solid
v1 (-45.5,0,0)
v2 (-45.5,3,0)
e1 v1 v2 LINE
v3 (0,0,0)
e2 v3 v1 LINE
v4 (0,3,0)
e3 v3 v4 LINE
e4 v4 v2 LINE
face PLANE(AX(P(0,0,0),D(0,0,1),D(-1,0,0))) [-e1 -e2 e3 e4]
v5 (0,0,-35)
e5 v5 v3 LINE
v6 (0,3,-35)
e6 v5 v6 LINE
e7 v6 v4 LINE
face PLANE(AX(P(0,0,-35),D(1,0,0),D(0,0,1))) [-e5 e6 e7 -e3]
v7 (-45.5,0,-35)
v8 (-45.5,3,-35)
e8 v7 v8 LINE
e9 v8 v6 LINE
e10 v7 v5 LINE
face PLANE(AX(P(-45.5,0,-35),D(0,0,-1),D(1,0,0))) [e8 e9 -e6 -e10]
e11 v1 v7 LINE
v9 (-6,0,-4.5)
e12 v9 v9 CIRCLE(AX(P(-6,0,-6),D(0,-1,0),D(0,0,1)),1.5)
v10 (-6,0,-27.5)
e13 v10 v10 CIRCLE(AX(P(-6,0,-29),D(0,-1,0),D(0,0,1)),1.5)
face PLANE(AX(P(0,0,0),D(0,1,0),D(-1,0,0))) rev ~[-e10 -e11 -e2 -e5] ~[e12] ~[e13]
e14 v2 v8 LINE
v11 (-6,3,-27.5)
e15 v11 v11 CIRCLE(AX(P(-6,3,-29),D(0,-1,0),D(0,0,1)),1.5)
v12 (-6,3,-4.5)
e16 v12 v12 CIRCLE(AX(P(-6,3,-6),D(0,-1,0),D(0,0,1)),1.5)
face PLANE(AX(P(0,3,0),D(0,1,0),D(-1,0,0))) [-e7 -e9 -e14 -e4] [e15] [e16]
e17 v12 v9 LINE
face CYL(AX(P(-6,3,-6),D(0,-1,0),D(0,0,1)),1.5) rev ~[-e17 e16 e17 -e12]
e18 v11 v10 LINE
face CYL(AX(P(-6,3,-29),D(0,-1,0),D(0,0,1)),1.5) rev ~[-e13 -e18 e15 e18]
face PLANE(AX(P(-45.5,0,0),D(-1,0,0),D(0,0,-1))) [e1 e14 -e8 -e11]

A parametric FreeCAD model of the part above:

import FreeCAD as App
import Part
import Sketcher

doc = App.newDocument("Part")
params = doc.addObject("Spreadsheet::Sheet", "Params")
for row, (alias, value) in enumerate([
    ("sketch1_height", "35 mm"),
    ("sketch1_width", "45.5 mm"),
    ("pad1_length", "3 mm"),
    ("sketch2_diameter", "3 mm"),
    ("hole_diameter", "3 mm"),
], start=1):
    params.set(f"A{row}", alias)
    params.set(f"B{row}", "=" + value)
    params.setAlias(f"B{row}", alias)

body = doc.addObject("PartDesign::Body", "Body")

# Sketch on XZ plane
sketch1 = body.newObject("Sketcher::SketchObject", "Sketch")
sketch1.AttachmentSupport = (doc.getObject("XZ_Plane"), [""])
sketch1.MapMode = "FlatFace"
sketch1.addGeometry([
    Part.LineSegment(App.Vector(-45.5, 0, 0), App.Vector(0, 0, 0)),
    Part.LineSegment(App.Vector(0, 0, 0), App.Vector(0, -35, 0)),
    Part.LineSegment(App.Vector(0, -35, 0), App.Vector(-45.5, -35, 0)),
    Part.LineSegment(App.Vector(-45.5, -35, 0), App.Vector(-45.5, 0, 0)),
], False)
sketch1.addConstraint([
    Sketcher.Constraint("Coincident", 0, 2, 1, 1),
    Sketcher.Constraint("Coincident", 1, 2, 2, 1),
    Sketcher.Constraint("Coincident", 2, 2, 3, 1),
    Sketcher.Constraint("Coincident", 3, 2, 0, 1),
    Sketcher.Constraint("Horizontal", 0),
    Sketcher.Constraint("Vertical", 1),
    Sketcher.Constraint("Horizontal", 2),
    Sketcher.Constraint("Vertical", 3),
    Sketcher.Constraint("Coincident", 0, 2, -1, 1),
    Sketcher.Constraint("DistanceY", 1, 2, 1, 1, 35.0),
    Sketcher.Constraint("DistanceX", 0, 1, 0, 2, 45.5),
])
sketch1.setExpression("Constraints[9]", "Params.sketch1_height")
sketch1.setExpression("Constraints[10]", "Params.sketch1_width")
pad1 = body.newObject("PartDesign::Pad", "Pad")
pad1.Profile = sketch1
pad1.setExpression("Length", "Params.pad1_length")
pad1.Reversed = True

# Sketch on XZ plane
sketch2 = body.newObject("Sketcher::SketchObject", "Sketch001")
sketch2.AttachmentSupport = (doc.getObject("XZ_Plane"), [""])
sketch2.MapMode = "FlatFace"
sketch2.AttachmentOffset = App.Placement(App.Vector(0, 0, -3), App.Rotation())
sketch2.addGeometry([
    Part.Circle(App.Vector(-6, -6, 0), App.Vector(0, 0, 1), 1.5),
    Part.Circle(App.Vector(-6, -29, 0), App.Vector(0, 0, 1), 1.5),
], False)
sketch2.addConstraint([
    Sketcher.Constraint("Equal", 0, 1),
    Sketcher.Constraint("Vertical", 0, 3, 1, 3),
    Sketcher.Constraint("Diameter", 0, 3.0),
    Sketcher.Constraint("DistanceX", 0, 3, -1, 1, 6.0),
    Sketcher.Constraint("DistanceY", 0, 3, -1, 1, 6.0),
    Sketcher.Constraint("DistanceY", 1, 3, -1, 1, 29.0),
])
sketch2.setExpression("Constraints[2]", "Params.sketch2_diameter")
doc.recompute()
hole = body.newObject("PartDesign::Hole", "Hole")
hole.Profile = sketch2
hole.ThreadType = "None"
hole.setExpression("Diameter", "Params.hole_diameter")
hole.DepthType = "ThroughAll"
hole.Reversed = True

doc.recompute()
